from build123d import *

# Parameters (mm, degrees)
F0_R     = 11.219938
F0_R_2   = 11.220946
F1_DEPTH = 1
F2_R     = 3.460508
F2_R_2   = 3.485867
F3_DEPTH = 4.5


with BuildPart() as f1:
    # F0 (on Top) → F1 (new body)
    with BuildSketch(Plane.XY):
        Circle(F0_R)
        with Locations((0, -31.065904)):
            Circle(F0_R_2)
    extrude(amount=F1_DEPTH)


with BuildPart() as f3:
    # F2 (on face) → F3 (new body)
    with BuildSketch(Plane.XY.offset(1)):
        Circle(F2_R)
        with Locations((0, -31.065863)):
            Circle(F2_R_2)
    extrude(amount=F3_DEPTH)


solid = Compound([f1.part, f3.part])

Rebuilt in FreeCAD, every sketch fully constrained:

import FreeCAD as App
import Part
import Sketcher
Q = App.Units.Quantity

doc = App.newDocument("Part")
params = doc.addObject("Spreadsheet::Sheet", "Params")
for row, (alias, value) in enumerate([
    ("pad1_length", "1 mm"),
    ("pad2_length", "4.5 mm"),
], start=1):
    params.set(f"A{row}", alias)
    params.set(f"B{row}", "=" + value)
    params.setAlias(f"B{row}", alias)

body = doc.addObject("PartDesign::Body", "Body")
body.AllowCompound = True

# Sketch on XY plane
sketch1 = doc.addObject("Sketcher::SketchObject", "Sketch")
body.addObject(sketch1)
sketch1.AttachmentSupport = (doc.XY_Plane, [""])
sketch1.MapMode = "FlatFace"
sketch1.addGeometry([
    Part.Circle(App.Vector(0, 0, 0), App.Vector(0, 0, 1), 11),
    Part.Circle(App.Vector(0, -31, 0), App.Vector(0, 0, 1), 11),
], False)
sketch1.addConstraint([
    Sketcher.Constraint("Coincident", 0, 3, -1, 1),
    Sketcher.Constraint("PointOnObject", 1, 3, -2),
    Sketcher.Constraint("Diameter", 1, Q("22.441892 mm")),
    Sketcher.Constraint("Diameter", 0, Q("22.439876 mm")),
    Sketcher.Constraint("DistanceY", 1, 3, -1, 1, Q("31.065904 mm")),
])
pad1 = doc.addObject("PartDesign::Pad", "Pad")
body.addObject(pad1)
pad1.Profile = sketch1
pad1.setExpression("Length", "Params.pad1_length")
body2 = doc.addObject("PartDesign::Body", "Body001")
body2.AllowCompound = True

# Sketch on XY plane
sketch2 = doc.addObject("Sketcher::SketchObject", "Sketch001")
body2.addObject(sketch2)
sketch2.AttachmentSupport = (doc.getObject("XY_Plane001"), [""])
sketch2.MapMode = "FlatFace"
sketch2.AttachmentOffset = App.Placement(App.Vector(0, 0, 1), App.Rotation())
sketch2.addGeometry([
    Part.Circle(App.Vector(0, 0, 0), App.Vector(0, 0, 1), 3.5),
    Part.Circle(App.Vector(0, -31.1, 0), App.Vector(0, 0, 1), 3.5),
], False)
sketch2.addConstraint([
    Sketcher.Constraint("Coincident", 0, 3, -1, 1),
    Sketcher.Constraint("PointOnObject", 1, 3, -2),
    Sketcher.Constraint("Diameter", 0, Q("6.921016 mm")),
    Sketcher.Constraint("Diameter", 1, Q("6.971734 mm")),
    Sketcher.Constraint("DistanceY", 1, 3, -1, 1, Q("31.065863 mm")),
])
pad2 = doc.addObject("PartDesign::Pad", "Pad001")
body2.addObject(pad2)
pad2.Profile = sketch2
pad2.setExpression("Length", "Params.pad2_length")

doc.recompute()
